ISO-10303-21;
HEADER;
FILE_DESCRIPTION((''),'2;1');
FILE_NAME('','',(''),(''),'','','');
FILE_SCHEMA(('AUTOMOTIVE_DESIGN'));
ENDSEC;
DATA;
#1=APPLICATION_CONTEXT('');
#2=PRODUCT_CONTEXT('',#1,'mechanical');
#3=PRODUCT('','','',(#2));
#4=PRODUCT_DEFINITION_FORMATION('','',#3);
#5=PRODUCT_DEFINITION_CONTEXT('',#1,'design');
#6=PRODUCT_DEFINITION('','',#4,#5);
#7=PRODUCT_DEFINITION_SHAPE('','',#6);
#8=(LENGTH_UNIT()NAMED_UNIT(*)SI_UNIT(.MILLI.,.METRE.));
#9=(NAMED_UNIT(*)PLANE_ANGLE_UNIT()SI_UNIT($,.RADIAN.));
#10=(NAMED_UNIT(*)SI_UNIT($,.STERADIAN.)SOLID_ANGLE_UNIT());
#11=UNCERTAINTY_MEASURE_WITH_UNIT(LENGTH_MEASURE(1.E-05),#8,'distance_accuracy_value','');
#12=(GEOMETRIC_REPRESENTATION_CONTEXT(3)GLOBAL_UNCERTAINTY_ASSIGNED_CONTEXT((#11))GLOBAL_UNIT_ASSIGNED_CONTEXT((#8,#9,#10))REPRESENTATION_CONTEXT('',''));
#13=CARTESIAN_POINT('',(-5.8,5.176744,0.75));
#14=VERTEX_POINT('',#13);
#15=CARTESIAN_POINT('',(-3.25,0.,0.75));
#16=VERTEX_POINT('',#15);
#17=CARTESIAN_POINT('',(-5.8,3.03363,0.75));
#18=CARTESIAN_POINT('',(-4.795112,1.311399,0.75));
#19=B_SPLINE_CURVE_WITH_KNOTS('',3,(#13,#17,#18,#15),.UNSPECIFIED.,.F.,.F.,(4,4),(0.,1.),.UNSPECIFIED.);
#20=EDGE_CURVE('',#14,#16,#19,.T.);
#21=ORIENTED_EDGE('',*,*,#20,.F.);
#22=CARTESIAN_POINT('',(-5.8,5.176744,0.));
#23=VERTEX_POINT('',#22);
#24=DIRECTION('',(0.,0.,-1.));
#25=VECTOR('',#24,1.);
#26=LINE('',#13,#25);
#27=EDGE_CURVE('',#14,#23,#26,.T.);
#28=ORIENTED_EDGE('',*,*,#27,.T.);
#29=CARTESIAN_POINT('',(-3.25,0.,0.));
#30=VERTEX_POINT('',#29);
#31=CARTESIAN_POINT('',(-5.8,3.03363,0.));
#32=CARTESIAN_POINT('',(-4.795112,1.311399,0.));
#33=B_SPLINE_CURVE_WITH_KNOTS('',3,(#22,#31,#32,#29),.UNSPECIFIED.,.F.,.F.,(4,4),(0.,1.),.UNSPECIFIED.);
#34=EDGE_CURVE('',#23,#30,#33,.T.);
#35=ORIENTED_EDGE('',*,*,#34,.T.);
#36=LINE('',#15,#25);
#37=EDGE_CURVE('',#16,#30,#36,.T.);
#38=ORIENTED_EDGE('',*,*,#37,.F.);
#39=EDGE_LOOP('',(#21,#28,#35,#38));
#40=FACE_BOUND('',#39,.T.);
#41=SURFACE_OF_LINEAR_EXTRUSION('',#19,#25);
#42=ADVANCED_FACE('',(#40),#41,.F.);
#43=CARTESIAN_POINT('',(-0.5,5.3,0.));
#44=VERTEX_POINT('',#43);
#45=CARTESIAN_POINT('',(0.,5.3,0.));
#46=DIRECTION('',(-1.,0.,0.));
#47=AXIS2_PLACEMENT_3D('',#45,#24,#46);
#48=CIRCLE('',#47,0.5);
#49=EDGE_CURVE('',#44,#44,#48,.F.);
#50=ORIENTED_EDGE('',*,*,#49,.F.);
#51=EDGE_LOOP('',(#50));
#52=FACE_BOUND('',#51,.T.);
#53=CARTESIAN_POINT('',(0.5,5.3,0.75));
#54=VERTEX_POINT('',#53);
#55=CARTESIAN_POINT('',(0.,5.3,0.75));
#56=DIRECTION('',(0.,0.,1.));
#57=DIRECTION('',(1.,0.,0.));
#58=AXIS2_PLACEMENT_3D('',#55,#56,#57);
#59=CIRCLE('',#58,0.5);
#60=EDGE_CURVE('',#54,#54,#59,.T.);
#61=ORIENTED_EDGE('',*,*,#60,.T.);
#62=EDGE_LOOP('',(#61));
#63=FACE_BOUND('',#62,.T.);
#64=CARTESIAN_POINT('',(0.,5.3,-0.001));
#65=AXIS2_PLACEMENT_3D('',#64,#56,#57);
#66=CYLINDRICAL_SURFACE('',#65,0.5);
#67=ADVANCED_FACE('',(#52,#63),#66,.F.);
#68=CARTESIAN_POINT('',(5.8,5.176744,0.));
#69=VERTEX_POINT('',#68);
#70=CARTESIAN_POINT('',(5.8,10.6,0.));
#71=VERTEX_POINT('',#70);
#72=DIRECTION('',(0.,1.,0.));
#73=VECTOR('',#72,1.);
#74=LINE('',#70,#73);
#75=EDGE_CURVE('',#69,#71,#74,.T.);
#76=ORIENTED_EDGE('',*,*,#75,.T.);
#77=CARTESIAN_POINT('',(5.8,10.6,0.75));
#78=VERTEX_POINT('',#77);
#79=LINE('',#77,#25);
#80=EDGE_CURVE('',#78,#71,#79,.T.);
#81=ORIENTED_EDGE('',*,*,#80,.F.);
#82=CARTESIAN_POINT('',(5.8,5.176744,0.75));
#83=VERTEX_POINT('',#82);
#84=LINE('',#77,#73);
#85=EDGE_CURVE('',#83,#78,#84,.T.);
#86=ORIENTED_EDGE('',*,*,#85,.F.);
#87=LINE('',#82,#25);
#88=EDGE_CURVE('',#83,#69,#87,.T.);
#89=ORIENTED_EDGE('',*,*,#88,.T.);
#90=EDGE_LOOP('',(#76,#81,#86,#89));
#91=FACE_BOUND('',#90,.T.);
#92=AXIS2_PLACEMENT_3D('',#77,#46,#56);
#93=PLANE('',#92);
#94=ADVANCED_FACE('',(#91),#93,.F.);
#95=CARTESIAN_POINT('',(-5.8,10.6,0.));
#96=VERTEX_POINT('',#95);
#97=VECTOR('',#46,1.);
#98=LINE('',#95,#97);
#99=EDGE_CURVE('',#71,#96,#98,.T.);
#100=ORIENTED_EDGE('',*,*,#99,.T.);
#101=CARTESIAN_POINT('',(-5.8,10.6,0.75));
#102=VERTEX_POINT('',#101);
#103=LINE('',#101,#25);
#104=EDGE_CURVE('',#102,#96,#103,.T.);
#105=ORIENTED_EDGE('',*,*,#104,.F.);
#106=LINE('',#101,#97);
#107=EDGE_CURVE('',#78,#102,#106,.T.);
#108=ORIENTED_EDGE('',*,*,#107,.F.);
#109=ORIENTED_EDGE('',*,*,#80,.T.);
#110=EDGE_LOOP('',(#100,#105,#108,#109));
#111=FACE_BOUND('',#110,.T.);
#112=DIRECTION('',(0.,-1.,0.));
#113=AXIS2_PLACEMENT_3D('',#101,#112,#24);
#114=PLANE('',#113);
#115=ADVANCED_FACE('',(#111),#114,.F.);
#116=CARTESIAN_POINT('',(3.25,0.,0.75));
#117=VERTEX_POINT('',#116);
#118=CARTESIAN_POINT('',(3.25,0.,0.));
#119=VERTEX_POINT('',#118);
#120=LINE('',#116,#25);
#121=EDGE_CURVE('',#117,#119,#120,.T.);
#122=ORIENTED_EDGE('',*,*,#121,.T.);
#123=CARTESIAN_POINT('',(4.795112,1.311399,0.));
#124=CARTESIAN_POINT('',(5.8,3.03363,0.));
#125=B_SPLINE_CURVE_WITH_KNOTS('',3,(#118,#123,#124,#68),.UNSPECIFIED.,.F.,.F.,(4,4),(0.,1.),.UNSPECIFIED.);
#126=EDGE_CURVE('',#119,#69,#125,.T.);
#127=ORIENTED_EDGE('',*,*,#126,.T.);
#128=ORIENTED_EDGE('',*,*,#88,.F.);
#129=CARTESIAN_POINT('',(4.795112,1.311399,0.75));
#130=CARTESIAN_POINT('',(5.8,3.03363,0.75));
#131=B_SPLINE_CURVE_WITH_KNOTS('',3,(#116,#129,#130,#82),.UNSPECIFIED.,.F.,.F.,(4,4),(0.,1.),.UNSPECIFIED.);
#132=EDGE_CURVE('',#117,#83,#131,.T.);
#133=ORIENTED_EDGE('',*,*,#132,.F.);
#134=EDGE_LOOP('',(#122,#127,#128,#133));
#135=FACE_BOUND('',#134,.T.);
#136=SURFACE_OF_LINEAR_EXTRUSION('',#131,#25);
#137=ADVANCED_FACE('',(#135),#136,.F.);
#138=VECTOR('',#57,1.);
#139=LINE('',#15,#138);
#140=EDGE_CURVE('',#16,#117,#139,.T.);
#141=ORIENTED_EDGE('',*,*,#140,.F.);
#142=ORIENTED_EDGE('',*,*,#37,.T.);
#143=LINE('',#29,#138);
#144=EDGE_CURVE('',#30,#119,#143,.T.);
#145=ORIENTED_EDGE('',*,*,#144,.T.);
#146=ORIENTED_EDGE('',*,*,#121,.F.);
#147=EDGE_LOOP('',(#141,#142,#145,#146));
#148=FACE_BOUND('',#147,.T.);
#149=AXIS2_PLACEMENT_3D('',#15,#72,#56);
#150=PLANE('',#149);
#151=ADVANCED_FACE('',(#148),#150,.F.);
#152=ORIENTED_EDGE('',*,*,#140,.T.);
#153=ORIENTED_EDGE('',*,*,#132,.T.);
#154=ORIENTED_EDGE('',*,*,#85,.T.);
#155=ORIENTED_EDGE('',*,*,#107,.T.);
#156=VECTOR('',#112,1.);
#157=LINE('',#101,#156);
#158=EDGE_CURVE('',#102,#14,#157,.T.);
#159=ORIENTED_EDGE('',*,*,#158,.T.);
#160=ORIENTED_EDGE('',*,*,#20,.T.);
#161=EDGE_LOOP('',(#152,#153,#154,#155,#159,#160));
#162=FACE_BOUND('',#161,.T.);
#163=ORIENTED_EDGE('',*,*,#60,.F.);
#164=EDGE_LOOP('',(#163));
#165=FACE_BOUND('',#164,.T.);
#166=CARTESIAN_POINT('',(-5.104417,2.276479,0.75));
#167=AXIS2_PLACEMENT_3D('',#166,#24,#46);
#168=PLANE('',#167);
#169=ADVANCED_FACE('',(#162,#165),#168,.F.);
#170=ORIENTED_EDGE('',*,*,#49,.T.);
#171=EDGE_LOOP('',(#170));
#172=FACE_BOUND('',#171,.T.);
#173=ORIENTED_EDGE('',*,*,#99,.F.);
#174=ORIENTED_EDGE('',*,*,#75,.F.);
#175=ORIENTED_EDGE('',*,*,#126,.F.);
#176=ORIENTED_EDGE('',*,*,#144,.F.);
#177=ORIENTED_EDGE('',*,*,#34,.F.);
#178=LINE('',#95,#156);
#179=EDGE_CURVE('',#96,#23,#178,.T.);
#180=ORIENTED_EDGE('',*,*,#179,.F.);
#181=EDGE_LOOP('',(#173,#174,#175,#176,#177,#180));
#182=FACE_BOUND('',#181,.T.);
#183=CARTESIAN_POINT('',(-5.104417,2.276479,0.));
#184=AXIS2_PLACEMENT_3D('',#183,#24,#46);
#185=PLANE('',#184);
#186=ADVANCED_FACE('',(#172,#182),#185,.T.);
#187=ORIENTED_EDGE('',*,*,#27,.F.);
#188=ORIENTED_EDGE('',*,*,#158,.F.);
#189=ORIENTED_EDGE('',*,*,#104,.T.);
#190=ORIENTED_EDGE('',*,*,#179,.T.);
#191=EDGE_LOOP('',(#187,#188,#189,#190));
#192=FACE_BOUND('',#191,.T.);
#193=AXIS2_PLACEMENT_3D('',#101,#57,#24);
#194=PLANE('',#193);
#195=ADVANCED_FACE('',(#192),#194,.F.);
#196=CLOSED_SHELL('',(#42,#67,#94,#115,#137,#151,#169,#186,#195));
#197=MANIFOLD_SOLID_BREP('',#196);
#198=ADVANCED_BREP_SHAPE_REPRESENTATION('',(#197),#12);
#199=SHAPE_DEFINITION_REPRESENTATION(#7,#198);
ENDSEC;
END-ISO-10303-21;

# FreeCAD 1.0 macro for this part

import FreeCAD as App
import Part
import Sketcher

V = App.Vector

doc = App.newDocument("Part")
body = doc.addObject("PartDesign::Body", "Body")

# Sketch on XY plane
sketch1 = body.newObject("Sketcher::SketchObject", "Sketch")
sketch1.AttachmentSupport = (doc.getObject("XY_Plane"), [""])
sketch1.MapMode = "FlatFace"
sketch1.addGeometry([
    Part.LineSegment(V(-3.25, 0, 0), V(3.25, 0, 0)),  # 0
    Part.BSplineCurve([V(5.8, 5.176744, 0), V(5.8, 3.03363, 0), V(4.795112, 1.311399, 0), V(3.25, 0, 0)], [4, 4], [0, 1], False, 3, [1, 1, 1, 1], False),  # 1
    Part.LineSegment(V(5.8, 5.176744, 0), V(5.8, 10.6, 0)),  # 2
    Part.LineSegment(V(5.8, 10.6, 0), V(-5.8, 10.6, 0)),  # 3
    Part.LineSegment(V(-5.8, 10.6, 0), V(-5.8, 5.176744, 0)),  # 4
    Part.BSplineCurve([V(-5.8, 5.176744, 0), V(-5.8, 3.03363, 0), V(-4.795112, 1.311399, 0), V(-3.25, 0, 0)], [4, 4], [0, 1], False, 3, [1, 1, 1, 1], False),  # 5
], False)
sketch1.addConstraint([
    Sketcher.Constraint("Block", 1),
    Sketcher.Constraint("Block", 5),
    Sketcher.Constraint("Coincident", 0, 2, 1, 2),
    Sketcher.Constraint("Coincident", 1, 1, 2, 1),
    Sketcher.Constraint("Coincident", 2, 2, 3, 1),
    Sketcher.Constraint("Coincident", 3, 2, 4, 1),
    Sketcher.Constraint("Coincident", 4, 2, 5, 1),
    Sketcher.Constraint("Coincident", 5, 2, 0, 1),
    Sketcher.Constraint("Vertical", 2),
    Sketcher.Constraint("Horizontal", 3),
    Sketcher.Constraint("Vertical", 4),
    Sketcher.Constraint("DistanceY", -1, 1, 2, 2, 10.6),
])
pad1 = body.newObject("PartDesign::Pad", "Pad")
pad1.Profile = sketch1
pad1.Length = 0.75

# Sketch on XY plane
sketch2 = body.newObject("Sketcher::SketchObject", "Sketch001")
sketch2.AttachmentSupport = (doc.getObject("XY_Plane"), [""])
sketch2.MapMode = "FlatFace"
sketch2.AttachmentOffset = App.Placement(V(0, 0, 0.75), App.Rotation())
sketch2.addGeometry(Part.Circle(V(0, 5.3, 0), V(0, 0, 1), 0.5), False)
sketch2.addConstraint([
    Sketcher.Constraint("PointOnObject", 0, 3, -2),
    Sketcher.Constraint("Diameter", 0, 1.0),
    Sketcher.Constraint("DistanceY", -1, 1, 0, 3, 5.3),
])
pocket1 = body.newObject("PartDesign::Pocket", "Pocket")
pocket1.Profile = sketch2
pocket1.Type = "UpToFirst"

doc.recompute()
